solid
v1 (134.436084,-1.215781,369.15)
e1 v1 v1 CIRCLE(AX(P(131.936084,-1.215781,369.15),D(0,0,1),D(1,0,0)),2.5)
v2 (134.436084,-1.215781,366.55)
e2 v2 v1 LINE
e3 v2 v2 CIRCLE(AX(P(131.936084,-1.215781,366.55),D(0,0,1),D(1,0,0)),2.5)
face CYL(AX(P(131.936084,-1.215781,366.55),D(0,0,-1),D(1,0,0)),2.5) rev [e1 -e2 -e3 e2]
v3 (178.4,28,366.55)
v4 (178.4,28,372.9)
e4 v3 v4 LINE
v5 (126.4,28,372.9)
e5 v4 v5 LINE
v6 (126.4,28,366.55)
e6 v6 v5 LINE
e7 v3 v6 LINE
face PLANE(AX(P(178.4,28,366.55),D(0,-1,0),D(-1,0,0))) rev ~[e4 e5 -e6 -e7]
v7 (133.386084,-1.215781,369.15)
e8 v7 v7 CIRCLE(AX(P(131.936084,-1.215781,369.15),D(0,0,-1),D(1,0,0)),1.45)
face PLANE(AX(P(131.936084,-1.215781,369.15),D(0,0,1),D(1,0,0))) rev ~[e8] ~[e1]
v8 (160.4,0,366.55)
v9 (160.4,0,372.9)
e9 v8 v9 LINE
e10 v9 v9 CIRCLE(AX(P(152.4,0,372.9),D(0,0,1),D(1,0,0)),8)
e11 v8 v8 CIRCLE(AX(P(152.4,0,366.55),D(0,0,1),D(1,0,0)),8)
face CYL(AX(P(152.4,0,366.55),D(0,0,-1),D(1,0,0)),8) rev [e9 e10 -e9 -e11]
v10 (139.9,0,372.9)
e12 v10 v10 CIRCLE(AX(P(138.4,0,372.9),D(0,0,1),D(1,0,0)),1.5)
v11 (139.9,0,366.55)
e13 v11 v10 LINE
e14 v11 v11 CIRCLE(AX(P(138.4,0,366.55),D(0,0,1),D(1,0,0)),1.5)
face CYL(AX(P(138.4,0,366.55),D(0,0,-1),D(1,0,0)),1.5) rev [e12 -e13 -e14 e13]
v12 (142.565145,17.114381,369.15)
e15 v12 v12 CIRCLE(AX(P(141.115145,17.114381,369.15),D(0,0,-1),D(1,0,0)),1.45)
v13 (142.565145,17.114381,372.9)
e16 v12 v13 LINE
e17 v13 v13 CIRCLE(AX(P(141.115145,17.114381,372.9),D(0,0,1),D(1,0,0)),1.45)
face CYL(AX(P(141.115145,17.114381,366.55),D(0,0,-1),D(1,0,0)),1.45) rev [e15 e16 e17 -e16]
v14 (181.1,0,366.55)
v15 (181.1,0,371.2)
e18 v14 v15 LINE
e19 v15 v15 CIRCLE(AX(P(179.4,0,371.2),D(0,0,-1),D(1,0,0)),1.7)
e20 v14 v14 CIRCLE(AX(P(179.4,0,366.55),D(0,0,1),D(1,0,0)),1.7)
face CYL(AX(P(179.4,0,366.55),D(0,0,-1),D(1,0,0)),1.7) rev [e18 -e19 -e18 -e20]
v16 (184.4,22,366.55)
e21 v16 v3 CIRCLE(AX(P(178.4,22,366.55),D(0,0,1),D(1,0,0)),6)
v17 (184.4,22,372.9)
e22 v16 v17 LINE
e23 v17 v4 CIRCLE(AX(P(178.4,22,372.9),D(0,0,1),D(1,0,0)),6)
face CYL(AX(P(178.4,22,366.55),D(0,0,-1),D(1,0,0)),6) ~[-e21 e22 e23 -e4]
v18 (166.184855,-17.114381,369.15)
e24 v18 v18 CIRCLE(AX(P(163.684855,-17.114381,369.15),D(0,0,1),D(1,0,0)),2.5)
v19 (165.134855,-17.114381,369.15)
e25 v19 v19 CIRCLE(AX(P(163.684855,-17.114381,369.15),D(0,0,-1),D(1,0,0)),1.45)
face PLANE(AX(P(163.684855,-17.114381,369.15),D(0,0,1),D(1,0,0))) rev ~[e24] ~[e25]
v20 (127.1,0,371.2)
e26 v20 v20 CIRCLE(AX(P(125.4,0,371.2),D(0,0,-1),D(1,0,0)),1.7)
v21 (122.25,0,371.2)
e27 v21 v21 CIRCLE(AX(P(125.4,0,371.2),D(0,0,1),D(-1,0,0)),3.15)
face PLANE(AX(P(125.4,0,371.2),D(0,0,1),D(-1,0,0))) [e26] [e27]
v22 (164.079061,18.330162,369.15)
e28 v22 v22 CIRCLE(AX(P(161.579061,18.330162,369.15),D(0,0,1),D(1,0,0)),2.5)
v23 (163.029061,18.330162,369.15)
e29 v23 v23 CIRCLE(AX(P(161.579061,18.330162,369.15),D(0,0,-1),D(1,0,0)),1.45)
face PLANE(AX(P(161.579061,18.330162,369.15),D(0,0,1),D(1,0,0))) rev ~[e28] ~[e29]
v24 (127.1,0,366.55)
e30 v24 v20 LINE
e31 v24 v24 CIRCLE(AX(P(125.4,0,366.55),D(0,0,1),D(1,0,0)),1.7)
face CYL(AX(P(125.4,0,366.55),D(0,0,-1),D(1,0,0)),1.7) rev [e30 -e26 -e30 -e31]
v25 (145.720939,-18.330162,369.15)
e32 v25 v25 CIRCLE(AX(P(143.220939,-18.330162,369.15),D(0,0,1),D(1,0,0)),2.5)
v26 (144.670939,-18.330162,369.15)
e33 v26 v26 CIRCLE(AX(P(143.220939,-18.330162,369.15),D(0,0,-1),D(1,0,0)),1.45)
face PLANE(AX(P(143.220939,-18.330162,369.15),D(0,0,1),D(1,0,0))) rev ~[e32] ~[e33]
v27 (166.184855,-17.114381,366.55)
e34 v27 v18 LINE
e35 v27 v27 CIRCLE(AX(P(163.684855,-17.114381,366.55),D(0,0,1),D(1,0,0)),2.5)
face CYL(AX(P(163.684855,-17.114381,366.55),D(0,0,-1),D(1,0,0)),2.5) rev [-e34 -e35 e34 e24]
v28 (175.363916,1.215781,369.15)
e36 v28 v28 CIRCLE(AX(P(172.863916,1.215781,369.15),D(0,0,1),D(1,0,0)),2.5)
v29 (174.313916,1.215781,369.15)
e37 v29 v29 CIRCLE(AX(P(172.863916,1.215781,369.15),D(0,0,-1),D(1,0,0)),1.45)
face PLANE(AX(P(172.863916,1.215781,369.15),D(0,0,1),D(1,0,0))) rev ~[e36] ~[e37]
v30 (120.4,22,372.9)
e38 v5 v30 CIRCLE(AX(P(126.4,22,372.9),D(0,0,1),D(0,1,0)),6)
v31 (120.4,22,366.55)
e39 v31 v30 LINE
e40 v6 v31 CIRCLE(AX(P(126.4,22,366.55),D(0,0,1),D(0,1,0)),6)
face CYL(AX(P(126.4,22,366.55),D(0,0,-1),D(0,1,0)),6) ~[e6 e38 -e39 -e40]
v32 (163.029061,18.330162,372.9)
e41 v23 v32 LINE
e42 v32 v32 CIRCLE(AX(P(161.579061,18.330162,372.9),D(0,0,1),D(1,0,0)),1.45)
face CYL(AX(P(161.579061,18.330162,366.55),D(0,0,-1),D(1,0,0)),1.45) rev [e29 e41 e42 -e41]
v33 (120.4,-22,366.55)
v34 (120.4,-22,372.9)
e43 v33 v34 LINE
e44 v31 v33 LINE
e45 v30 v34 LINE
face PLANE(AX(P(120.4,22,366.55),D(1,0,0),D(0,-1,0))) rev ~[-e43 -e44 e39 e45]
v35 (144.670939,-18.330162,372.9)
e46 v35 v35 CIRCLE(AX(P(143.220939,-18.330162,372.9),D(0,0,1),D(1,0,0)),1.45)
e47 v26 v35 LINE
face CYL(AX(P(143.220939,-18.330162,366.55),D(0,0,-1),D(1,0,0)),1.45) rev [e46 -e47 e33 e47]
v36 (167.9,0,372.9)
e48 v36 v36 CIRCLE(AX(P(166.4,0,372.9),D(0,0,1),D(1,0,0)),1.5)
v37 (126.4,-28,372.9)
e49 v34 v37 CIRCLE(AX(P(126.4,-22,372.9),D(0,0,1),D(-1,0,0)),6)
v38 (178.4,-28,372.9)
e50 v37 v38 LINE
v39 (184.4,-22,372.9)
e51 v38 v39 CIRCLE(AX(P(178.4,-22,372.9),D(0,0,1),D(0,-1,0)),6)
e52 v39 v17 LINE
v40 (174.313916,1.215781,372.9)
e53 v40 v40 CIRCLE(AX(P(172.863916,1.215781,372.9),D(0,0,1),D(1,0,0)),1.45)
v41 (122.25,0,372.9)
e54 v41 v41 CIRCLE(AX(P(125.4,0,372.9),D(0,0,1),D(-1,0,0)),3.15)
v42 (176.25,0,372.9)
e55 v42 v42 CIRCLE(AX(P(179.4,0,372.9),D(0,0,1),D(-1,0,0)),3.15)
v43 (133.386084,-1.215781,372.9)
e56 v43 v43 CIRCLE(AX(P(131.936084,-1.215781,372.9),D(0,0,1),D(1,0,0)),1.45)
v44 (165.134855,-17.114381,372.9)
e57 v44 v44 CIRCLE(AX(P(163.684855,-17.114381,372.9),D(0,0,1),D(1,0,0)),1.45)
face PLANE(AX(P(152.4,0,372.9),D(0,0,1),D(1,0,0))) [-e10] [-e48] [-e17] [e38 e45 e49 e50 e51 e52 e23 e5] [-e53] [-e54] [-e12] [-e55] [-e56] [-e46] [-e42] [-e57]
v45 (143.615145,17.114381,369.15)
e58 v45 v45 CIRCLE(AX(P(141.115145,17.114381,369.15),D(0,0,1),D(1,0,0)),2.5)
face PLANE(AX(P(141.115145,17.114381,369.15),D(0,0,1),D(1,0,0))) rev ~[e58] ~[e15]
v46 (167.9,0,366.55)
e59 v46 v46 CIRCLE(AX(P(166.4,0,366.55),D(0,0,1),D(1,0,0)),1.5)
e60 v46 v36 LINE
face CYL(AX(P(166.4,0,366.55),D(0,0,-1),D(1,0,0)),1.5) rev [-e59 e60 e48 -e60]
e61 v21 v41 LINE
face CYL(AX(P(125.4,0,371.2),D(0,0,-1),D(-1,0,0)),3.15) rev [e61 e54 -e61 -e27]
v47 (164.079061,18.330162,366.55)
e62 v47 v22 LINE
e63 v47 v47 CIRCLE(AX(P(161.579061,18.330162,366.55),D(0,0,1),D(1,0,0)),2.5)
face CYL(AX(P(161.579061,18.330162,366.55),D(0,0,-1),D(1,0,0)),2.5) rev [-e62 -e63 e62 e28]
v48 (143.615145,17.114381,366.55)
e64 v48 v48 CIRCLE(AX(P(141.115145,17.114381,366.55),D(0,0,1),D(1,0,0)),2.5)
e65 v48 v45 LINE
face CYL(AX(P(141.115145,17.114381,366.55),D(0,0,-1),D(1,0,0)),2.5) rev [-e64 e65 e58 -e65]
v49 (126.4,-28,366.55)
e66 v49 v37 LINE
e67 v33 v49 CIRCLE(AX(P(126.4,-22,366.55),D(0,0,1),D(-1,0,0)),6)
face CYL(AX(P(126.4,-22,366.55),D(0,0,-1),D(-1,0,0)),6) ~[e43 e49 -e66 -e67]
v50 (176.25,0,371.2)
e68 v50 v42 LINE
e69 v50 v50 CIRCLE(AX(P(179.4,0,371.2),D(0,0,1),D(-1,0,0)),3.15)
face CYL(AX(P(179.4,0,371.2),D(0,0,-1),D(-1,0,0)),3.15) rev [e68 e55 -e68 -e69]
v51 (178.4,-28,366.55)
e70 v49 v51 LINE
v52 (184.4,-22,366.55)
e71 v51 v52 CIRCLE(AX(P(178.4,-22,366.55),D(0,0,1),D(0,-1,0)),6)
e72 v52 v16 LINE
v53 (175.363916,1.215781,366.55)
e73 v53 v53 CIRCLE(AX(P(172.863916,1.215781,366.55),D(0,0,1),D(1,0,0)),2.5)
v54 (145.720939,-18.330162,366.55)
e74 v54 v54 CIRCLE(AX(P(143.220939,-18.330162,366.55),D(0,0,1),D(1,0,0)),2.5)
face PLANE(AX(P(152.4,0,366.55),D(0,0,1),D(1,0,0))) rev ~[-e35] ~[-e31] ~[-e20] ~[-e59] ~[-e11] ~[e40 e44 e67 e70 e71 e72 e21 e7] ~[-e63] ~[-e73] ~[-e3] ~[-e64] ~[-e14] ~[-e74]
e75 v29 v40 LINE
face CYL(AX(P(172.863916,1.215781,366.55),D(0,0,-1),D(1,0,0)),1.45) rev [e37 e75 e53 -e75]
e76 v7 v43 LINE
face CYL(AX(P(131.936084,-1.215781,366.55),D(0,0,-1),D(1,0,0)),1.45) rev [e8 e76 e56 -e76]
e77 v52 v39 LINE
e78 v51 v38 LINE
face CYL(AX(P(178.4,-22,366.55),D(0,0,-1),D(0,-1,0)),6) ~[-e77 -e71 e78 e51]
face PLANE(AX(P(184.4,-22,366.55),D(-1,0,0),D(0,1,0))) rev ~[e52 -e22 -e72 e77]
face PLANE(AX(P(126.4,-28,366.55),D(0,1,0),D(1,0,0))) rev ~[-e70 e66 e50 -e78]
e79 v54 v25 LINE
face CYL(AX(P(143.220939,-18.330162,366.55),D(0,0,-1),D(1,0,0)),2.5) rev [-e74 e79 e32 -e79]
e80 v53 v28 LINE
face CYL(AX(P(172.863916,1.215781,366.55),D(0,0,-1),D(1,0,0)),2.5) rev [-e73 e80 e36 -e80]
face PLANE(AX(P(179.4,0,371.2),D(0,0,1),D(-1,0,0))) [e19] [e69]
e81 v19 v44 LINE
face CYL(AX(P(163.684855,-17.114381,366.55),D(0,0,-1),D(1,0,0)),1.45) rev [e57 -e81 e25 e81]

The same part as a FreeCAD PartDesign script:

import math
import FreeCAD as App
import Part
import Sketcher

V = App.Vector

doc = App.newDocument("Part")
body = doc.addObject("PartDesign::Body", "Body")

# Sketch on XY plane
sketch1 = body.newObject("Sketcher::SketchObject", "Sketch")
sketch1.AttachmentSupport = (doc.getObject("XY_Plane"), [""])
sketch1.MapMode = "FlatFace"
sketch1.AttachmentOffset = App.Placement(V(0, 0, 366.55), App.Rotation())
sketch1.addGeometry(Part.LineSegment(V(126, -28, 0), V(178, -28, 0)), False)
sketch1.addGeometry(Part.ArcOfCircle(Part.Circle(V(178, -22, 0), V(0, 0, 1), 6), math.radians(-90), math.radians(0)), False)
sketch1.addGeometry(Part.LineSegment(V(184, -22, 0), V(184, 22, 0)), False)
sketch1.addGeometry(Part.ArcOfCircle(Part.Circle(V(178, 22, 0), V(0, 0, 1), 6), math.radians(0), math.radians(90)), False)
sketch1.addGeometry(Part.LineSegment(V(178, 28, 0), V(126, 28, 0)), False)
sketch1.addGeometry(Part.ArcOfCircle(Part.Circle(V(126, 22, 0), V(0, 0, 1), 6), math.radians(90), math.radians(180)), False)
sketch1.addGeometry(Part.LineSegment(V(120, 22, 0), V(120, -22, 0)), False)
sketch1.addGeometry(Part.ArcOfCircle(Part.Circle(V(126, -22, 0), V(0, 0, 1), 6), math.radians(180), math.radians(270)), False)
sketch1.addConstraint(Sketcher.Constraint("Tangent", 0, 2, 1, 1))
sketch1.addConstraint(Sketcher.Constraint("Tangent", 1, 2, 2, 1))
sketch1.addConstraint(Sketcher.Constraint("Tangent", 2, 2, 3, 1))
sketch1.addConstraint(Sketcher.Constraint("Tangent", 3, 2, 4, 1))
sketch1.addConstraint(Sketcher.Constraint("Tangent", 4, 2, 5, 1))
sketch1.addConstraint(Sketcher.Constraint("Tangent", 5, 2, 6, 1))
sketch1.addConstraint(Sketcher.Constraint("Tangent", 6, 2, 7, 1))
sketch1.addConstraint(Sketcher.Constraint("Tangent", 7, 2, 0, 1))
sketch1.addConstraint(Sketcher.Constraint("Horizontal", 0))
sketch1.addConstraint(Sketcher.Constraint("Vertical", 2))
sketch1.addConstraint(Sketcher.Constraint("Horizontal", 4))
sketch1.addConstraint(Sketcher.Constraint("Vertical", 6))
sketch1.addConstraint(Sketcher.Constraint("Equal", 1, 3))
sketch1.addConstraint(Sketcher.Constraint("Equal", 3, 5))
sketch1.addConstraint(Sketcher.Constraint("Equal", 5, 7))
sketch1.addConstraint(Sketcher.Constraint("Radius", 1, 6.0))
sketch1.addConstraint(Sketcher.Constraint("DistanceX", 0, 1, 0, 2, 52.0))
sketch1.addConstraint(Sketcher.Constraint("DistanceY", 2, 1, 2, 2, 44.0))
sketch1.addConstraint(Sketcher.Constraint("DistanceY", 1, 3, -1, 1, 22.0))
sketch1.addConstraint(Sketcher.Constraint("DistanceX", -1, 1, 1, 3, 178.4))
pad1 = body.newObject("PartDesign::Pad", "Pad")
pad1.Profile = sketch1
pad1.Length = 6.35

# Sketch on XY plane
sketch2 = body.newObject("Sketcher::SketchObject", "Sketch001")
sketch2.AttachmentSupport = (doc.getObject("XY_Plane"), [""])
sketch2.MapMode = "FlatFace"
sketch2.AttachmentOffset = App.Placement(V(0, 0, 366.55), App.Rotation())
sketch2.addGeometry(Part.Circle(V(172.9, 1.2, 0), V(0, 0, 1), 1.4), False)
sketch2.addGeometry(Part.Circle(V(161.6, 18.3, 0), V(0, 0, 1), 1.4), False)
sketch2.addGeometry(Part.Circle(V(141.1, 17.1, 0), V(0, 0, 1), 1.4), False)
sketch2.addGeometry(Part.Circle(V(131.9, -1.2, 0), V(0, 0, 1), 1.4), False)
sketch2.addGeometry(Part.Circle(V(143.2, -18.3, 0), V(0, 0, 1), 1.4), False)
sketch2.addGeometry(Part.Circle(V(163.7, -17.1, 0), V(0, 0, 1), 1.4), False)
sketch2.addGeometry(Part.Circle(V(152.4, 0, 0), V(0, 0, 1), 8), False)
sketch2.addGeometry(Part.Circle(V(125.4, 0, 0), V(0, 0, 1), 1.7), False)
sketch2.addGeometry(Part.Circle(V(179.4, 0, 0), V(0, 0, 1), 1.7), False)
sketch2.addGeometry(Part.Circle(V(138.4, 0, 0), V(0, 0, 1), 1.5), False)
sketch2.addGeometry(Part.Circle(V(166.4, 0, 0), V(0, 0, 1), 1.5), False)
sketch2.addConstraint(Sketcher.Constraint("Equal", 0, 1))
sketch2.addConstraint(Sketcher.Constraint("Equal", 1, 2))
sketch2.addConstraint(Sketcher.Constraint("Equal", 2, 3))
sketch2.addConstraint(Sketcher.Constraint("Equal", 3, 4))
sketch2.addConstraint(Sketcher.Constraint("Equal", 4, 5))
sketch2.addConstraint(Sketcher.Constraint("Equal", 7, 8))
sketch2.addConstraint(Sketcher.Constraint("Equal", 9, 10))
sketch2.addConstraint(Sketcher.Constraint("PointOnObject", 6, 3, -1))
sketch2.addConstraint(Sketcher.Constraint("PointOnObject", 7, 3, -1))
sketch2.addConstraint(Sketcher.Constraint("PointOnObject", 8, 3, -1))
sketch2.addConstraint(Sketcher.Constraint("PointOnObject", 9, 3, -1))
sketch2.addConstraint(Sketcher.Constraint("PointOnObject", 10, 3, -1))
sketch2.addConstraint(Sketcher.Constraint("Diameter", 6, 16.0))
sketch2.addConstraint(Sketcher.Constraint("Diameter", 9, 3.0))
sketch2.addConstraint(Sketcher.Constraint("Diameter", 0, 2.9))
sketch2.addConstraint(Sketcher.Constraint("Diameter", 7, 3.4))
sketch2.addConstraint(Sketcher.Constraint("DistanceX", 7, 3, 6, 3, 27.0))
sketch2.addConstraint(Sketcher.Constraint("DistanceX", 6, 3, 8, 3, 27.0))
sketch2.addConstraint(Sketcher.Constraint("DistanceX", 7, 3, 9, 3, 13.0))
sketch2.addConstraint(Sketcher.Constraint("DistanceX", 10, 3, 8, 3, 13.0))
sketch2.addConstraint(Sketcher.Constraint("DistanceX", -1, 1, 6, 3, 152.4))
sketch2.addConstraint(Sketcher.Constraint("DistanceY", 0, 3, 2, 3, 15.898601))
sketch2.addConstraint(Sketcher.Constraint("DistanceY", 5, 3, 3, 3, 15.898601))
sketch2.addConstraint(Sketcher.Constraint("DistanceY", -1, 1, 0, 3, 1.215781))
sketch2.addConstraint(Sketcher.Constraint("DistanceX", -1, 1, 1, 3, 161.579061))
sketch2.addConstraint(Sketcher.Constraint("DistanceY", -1, 1, 1, 3, 18.330162))
sketch2.addConstraint(Sketcher.Constraint("DistanceY", 3, 3, -1, 1, 1.215781))
sketch2.addConstraint(Sketcher.Constraint("DistanceX", -1, 1, 4, 3, 143.220939))
sketch2.addConstraint(Sketcher.Constraint("DistanceY", 4, 3, -1, 1, 18.330162))
sketch2.addConstraint(Sketcher.Constraint("DistanceX", 2, 3, 0, 3, 31.748772))
sketch2.addConstraint(Sketcher.Constraint("DistanceX", 3, 3, 2, 3, 9.179061))
sketch2.addConstraint(Sketcher.Constraint("DistanceX", 5, 3, 0, 3, 9.179061))
sketch2.addConstraint(Sketcher.Constraint("DistanceX", -1, 1, 0, 3, 172.863916))
pocket1 = body.newObject("PartDesign::Pocket", "Pocket")
pocket1.Profile = sketch2
pocket1.Length = 6.35
pocket1.Reversed = True

# Sketch on XY plane
sketch3 = body.newObject("Sketcher::SketchObject", "Sketch002")
sketch3.AttachmentSupport = (doc.getObject("XY_Plane"), [""])
sketch3.MapMode = "FlatFace"
sketch3.AttachmentOffset = App.Placement(V(0, 0, 366.55), App.Rotation())
sketch3.addGeometry(Part.Circle(V(172.9, 1.2, 0), V(0, 0, 1), 2.5), False)
sketch3.addGeometry(Part.Circle(V(161.6, 18.3, 0), V(0, 0, 1), 2.5), False)
sketch3.addGeometry(Part.Circle(V(141.1, 17.1, 0), V(0, 0, 1), 2.5), False)
sketch3.addGeometry(Part.Circle(V(131.9, -1.2, 0), V(0, 0, 1), 2.5), False)
sketch3.addGeometry(Part.Circle(V(143.2, -18.3, 0), V(0, 0, 1), 2.5), False)
sketch3.addGeometry(Part.Circle(V(163.7, -17.1, 0), V(0, 0, 1), 2.5), False)
sketch3.addConstraint(Sketcher.Constraint("Equal", 0, 1))
sketch3.addConstraint(Sketcher.Constraint("Equal", 1, 2))
sketch3.addConstraint(Sketcher.Constraint("Equal", 2, 3))
sketch3.addConstraint(Sketcher.Constraint("Equal", 3, 4))
sketch3.addConstraint(Sketcher.Constraint("Equal", 4, 5))
sketch3.addConstraint(Sketcher.Constraint("Diameter", 0, 5.0))
sketch3.addConstraint(Sketcher.Constraint("DistanceY", 0, 3, 2, 3, 15.898601))
sketch3.addConstraint(Sketcher.Constraint("DistanceY", 5, 3, 3, 3, 15.898601))
sketch3.addConstraint(Sketcher.Constraint("DistanceY", -1, 1, 0, 3, 1.215781))
sketch3.addConstraint(Sketcher.Constraint("DistanceX", -1, 1, 1, 3, 161.579061))
sketch3.addConstraint(Sketcher.Constraint("DistanceY", -1, 1, 1, 3, 18.330162))
sketch3.addConstraint(Sketcher.Constraint("DistanceY", 3, 3, -1, 1, 1.215781))
sketch3.addConstraint(Sketcher.Constraint("DistanceX", -1, 1, 4, 3, 143.220939))
sketch3.addConstraint(Sketcher.Constraint("DistanceY", 4, 3, -1, 1, 18.330162))
sketch3.addConstraint(Sketcher.Constraint("DistanceX", 2, 3, 0, 3, 31.748772))
sketch3.addConstraint(Sketcher.Constraint("DistanceX", 3, 3, 2, 3, 9.179061))
sketch3.addConstraint(Sketcher.Constraint("DistanceX", 5, 3, 0, 3, 9.179061))
sketch3.addConstraint(Sketcher.Constraint("DistanceX", -1, 1, 0, 3, 172.863916))
pocket2 = body.newObject("PartDesign::Pocket", "Pocket001")
pocket2.Profile = sketch3
pocket2.Length = 2.6
pocket2.Reversed = True

# Sketch on XY plane
sketch4 = body.newObject("Sketcher::SketchObject", "Sketch003")
sketch4.AttachmentSupport = (doc.getObject("XY_Plane"), [""])
sketch4.MapMode = "FlatFace"
sketch4.AttachmentOffset = App.Placement(V(0, 0, 371.2), App.Rotation())
sketch4.addGeometry(Part.Circle(V(125.4, 0, 0), V(0, 0, 1), 3.1), False)
sketch4.addGeometry(Part.Circle(V(179.4, 0, 0), V(0, 0, 1), 3.1), False)
sketch4.addConstraint(Sketcher.Constraint("Equal", 0, 1))
sketch4.addConstraint(Sketcher.Constraint("PointOnObject", 0, 3, -1))
sketch4.addConstraint(Sketcher.Constraint("PointOnObject", 1, 3, -1))
sketch4.addConstraint(Sketcher.Constraint("Diameter", 0, 6.3))
sketch4.addConstraint(Sketcher.Constraint("DistanceX", 0, 3, 1, 3, 54.0))
sketch4.addConstraint(Sketcher.Constraint("DistanceX", -1, 1, 0, 3, 125.4))
pocket3 = body.newObject("PartDesign::Pocket", "Pocket002")
pocket3.Profile = sketch4
pocket3.Length = 1.7
pocket3.Reversed = True

doc.recompute()
